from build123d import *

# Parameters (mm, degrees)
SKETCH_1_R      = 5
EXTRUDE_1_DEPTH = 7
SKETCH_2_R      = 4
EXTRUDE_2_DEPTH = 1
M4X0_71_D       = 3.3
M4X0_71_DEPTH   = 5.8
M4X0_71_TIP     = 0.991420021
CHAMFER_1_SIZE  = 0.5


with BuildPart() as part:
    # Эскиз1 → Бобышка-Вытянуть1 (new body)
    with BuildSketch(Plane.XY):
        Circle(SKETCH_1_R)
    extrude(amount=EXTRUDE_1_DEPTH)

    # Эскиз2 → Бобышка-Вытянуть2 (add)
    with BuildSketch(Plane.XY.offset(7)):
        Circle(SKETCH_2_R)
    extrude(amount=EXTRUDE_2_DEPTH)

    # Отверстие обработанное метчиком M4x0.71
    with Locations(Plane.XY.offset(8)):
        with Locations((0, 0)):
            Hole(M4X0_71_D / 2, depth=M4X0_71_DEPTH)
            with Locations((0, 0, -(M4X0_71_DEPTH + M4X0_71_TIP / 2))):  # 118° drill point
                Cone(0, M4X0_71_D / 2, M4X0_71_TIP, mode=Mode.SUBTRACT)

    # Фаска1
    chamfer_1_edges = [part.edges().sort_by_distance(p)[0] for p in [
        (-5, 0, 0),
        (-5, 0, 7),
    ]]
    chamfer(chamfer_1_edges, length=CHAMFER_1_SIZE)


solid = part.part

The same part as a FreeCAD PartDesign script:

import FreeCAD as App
import Part
import Sketcher
from FreeCAD import Vector


def edges_at(feature, points):
    """Names of the edges that pass closest to the given points."""
    edges = feature.Shape.Edges
    near = lambda p: min(range(len(edges)), key=lambda i: edges[i].distToShape(Part.Vertex(*p))[0])
    return sorted({f"Edge{near(p) + 1}" for p in points})

doc = App.newDocument("Part")
body = doc.addObject("PartDesign::Body", "Body")

# Sketch on XY plane
sketch1 = body.newObject("Sketcher::SketchObject", "Sketch")
sketch1.AttachmentSupport = (doc.getObject("XY_Plane"), [""])
sketch1.MapMode = "FlatFace"
sketch1.addGeometry(Part.Circle(Vector(0, 0, 0), Vector(0, 0, 1), 5), False)
sketch1.addConstraint([
    Sketcher.Constraint("Coincident", 0, 3, -1, 1),
    Sketcher.Constraint("Diameter", 0, 10.0),
])
pad1 = body.newObject("PartDesign::Pad", "Pad")
pad1.Profile = sketch1
pad1.Length = 7

# Sketch on XY plane
sketch2 = body.newObject("Sketcher::SketchObject", "Sketch001")
sketch2.AttachmentSupport = (doc.getObject("XY_Plane"), [""])
sketch2.MapMode = "FlatFace"
sketch2.AttachmentOffset = App.Placement(Vector(0, 0, 7), App.Rotation())
sketch2.addGeometry(Part.Circle(Vector(0, 0, 0), Vector(0, 0, 1), 4), False)
sketch2.addConstraint([
    Sketcher.Constraint("Coincident", 0, 3, -1, 1),
    Sketcher.Constraint("Diameter", 0, 8.0),
])
pad2 = body.newObject("PartDesign::Pad", "Pad001")
pad2.Profile = sketch2
pad2.Length = 1

# Sketch on XY plane
sketch3 = body.newObject("Sketcher::SketchObject", "Sketch002")
sketch3.AttachmentSupport = (doc.getObject("XY_Plane"), [""])
sketch3.MapMode = "FlatFace"
sketch3.AttachmentOffset = App.Placement(Vector(0, 0, 8), App.Rotation())
sketch3.addGeometry(Part.Circle(Vector(0, 0, 0), Vector(0, 0, 1), 1.6), False)
sketch3.addConstraint([
    Sketcher.Constraint("Coincident", 0, 3, -1, 1),
    Sketcher.Constraint("Diameter", 0, 3.3),
])
doc.recompute()
hole = body.newObject("PartDesign::Hole", "Hole")
hole.Profile = sketch3
hole.ThreadType = "None"
hole.Diameter = 3.3
hole.DepthType = "Dimension"
hole.Depth = 5.8
hole.DrillPoint = "Angled"
hole.DrillPointAngle = 118
doc.recompute()

chamfer = body.newObject("PartDesign::Chamfer", "Chamfer")
chamfer.Base = (hole, edges_at(hole, [(-5, 0, 0), (-5, 0, 7)]))
chamfer.Size = 0.5

doc.recompute()
